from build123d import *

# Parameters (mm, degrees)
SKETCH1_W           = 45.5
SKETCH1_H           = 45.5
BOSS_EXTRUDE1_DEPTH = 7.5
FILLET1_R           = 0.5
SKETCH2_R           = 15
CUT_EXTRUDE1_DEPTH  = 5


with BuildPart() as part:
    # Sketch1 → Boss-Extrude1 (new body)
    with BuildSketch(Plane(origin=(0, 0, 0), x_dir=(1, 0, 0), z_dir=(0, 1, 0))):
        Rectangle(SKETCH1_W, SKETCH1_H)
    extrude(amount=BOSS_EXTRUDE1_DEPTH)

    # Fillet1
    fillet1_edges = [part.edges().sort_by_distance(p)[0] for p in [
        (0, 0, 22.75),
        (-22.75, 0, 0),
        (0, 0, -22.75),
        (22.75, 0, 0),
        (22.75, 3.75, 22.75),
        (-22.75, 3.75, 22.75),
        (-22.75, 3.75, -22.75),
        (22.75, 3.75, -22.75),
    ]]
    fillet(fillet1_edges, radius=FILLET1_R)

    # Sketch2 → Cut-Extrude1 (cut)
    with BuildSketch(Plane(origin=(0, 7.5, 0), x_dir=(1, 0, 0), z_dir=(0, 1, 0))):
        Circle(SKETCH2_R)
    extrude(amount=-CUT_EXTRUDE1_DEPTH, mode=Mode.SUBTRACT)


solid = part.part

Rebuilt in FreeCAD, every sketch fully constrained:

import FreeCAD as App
import Part
import Sketcher
from FreeCAD import Vector
Q = App.Units.Quantity


def edges_at(feature, points):
    """Names of the edges that pass closest to the given points."""
    edges = feature.Shape.Edges
    near = lambda p: min(range(len(edges)), key=lambda i: edges[i].distToShape(Part.Vertex(*p))[0])
    return sorted({f"Edge{near(p) + 1}" for p in points})

doc = App.newDocument("Part")
body = doc.addObject("PartDesign::Body", "Body")

# Sketch on XZ plane
sketch1 = body.newObject("Sketcher::SketchObject", "Sketch")
sketch1.AttachmentSupport = (doc.getObject("XZ_Plane"), [""])
sketch1.MapMode = "FlatFace"
sketch1.addGeometry(Part.LineSegment(Vector(-23, -23, 0), Vector(-23, 23, 0)), False)
sketch1.addGeometry(Part.LineSegment(Vector(-23, 23, 0), Vector(23, 23, 0)), False)
sketch1.addGeometry(Part.LineSegment(Vector(23, 23, 0), Vector(23, -23, 0)), False)
sketch1.addGeometry(Part.LineSegment(Vector(23, -23, 0), Vector(-23, -23, 0)), False)
sketch1.addConstraint(Sketcher.Constraint("Coincident", 0, 2, 1, 1))
sketch1.addConstraint(Sketcher.Constraint("Coincident", 1, 2, 2, 1))
sketch1.addConstraint(Sketcher.Constraint("Coincident", 2, 2, 3, 1))
sketch1.addConstraint(Sketcher.Constraint("Coincident", 3, 2, 0, 1))
sketch1.addConstraint(Sketcher.Constraint("Vertical", 0))
sketch1.addConstraint(Sketcher.Constraint("Horizontal", 1))
sketch1.addConstraint(Sketcher.Constraint("Vertical", 2))
sketch1.addConstraint(Sketcher.Constraint("Horizontal", 3))
sketch1.addConstraint(Sketcher.Constraint("Symmetric", 0, 2, 2, 2, -1, 1))
sketch1.addConstraint(Sketcher.Constraint("Equal", 3, 0))
sketch1.addConstraint(Sketcher.Constraint("DistanceX", 1, 1, 1, 2, Q("45.5 mm")))
pad1 = body.newObject("PartDesign::Pad", "Pad")
pad1.Profile = sketch1
pad1.Length = 7.5
pad1.Reversed = True
doc.recompute()

fillet = body.newObject("PartDesign::Fillet", "Fillet")
fillet.Base = (pad1, edges_at(pad1, [
    (0, 0, 22.75),
    (-22.75, 0, 0),
    (0, 0, -22.75),
    (22.75, 0, 0),
    (22.75, 3.75, 22.75),
    (-22.75, 3.75, 22.75),
    (-22.75, 3.75, -22.75),
    (22.75, 3.75, -22.75),
]))
fillet.Radius = 0.5

# Sketch on XZ plane
sketch2 = body.newObject("Sketcher::SketchObject", "Sketch001")
sketch2.AttachmentSupport = (doc.getObject("XZ_Plane"), [""])
sketch2.MapMode = "FlatFace"
sketch2.AttachmentOffset = App.Placement(Vector(0, 0, -7.5), App.Rotation())
sketch2.addGeometry(Part.Circle(Vector(0, 0, 0), Vector(0, 0, 1), 15), False)
sketch2.addConstraint(Sketcher.Constraint("Coincident", 0, 3, -1, 1))
sketch2.addConstraint(Sketcher.Constraint("Diameter", 0, Q("30 mm")))
pocket1 = body.newObject("PartDesign::Pocket", "Pocket")
pocket1.Profile = sketch2
pocket1.Length = 5
pocket1.Reversed = True

doc.recompute()
